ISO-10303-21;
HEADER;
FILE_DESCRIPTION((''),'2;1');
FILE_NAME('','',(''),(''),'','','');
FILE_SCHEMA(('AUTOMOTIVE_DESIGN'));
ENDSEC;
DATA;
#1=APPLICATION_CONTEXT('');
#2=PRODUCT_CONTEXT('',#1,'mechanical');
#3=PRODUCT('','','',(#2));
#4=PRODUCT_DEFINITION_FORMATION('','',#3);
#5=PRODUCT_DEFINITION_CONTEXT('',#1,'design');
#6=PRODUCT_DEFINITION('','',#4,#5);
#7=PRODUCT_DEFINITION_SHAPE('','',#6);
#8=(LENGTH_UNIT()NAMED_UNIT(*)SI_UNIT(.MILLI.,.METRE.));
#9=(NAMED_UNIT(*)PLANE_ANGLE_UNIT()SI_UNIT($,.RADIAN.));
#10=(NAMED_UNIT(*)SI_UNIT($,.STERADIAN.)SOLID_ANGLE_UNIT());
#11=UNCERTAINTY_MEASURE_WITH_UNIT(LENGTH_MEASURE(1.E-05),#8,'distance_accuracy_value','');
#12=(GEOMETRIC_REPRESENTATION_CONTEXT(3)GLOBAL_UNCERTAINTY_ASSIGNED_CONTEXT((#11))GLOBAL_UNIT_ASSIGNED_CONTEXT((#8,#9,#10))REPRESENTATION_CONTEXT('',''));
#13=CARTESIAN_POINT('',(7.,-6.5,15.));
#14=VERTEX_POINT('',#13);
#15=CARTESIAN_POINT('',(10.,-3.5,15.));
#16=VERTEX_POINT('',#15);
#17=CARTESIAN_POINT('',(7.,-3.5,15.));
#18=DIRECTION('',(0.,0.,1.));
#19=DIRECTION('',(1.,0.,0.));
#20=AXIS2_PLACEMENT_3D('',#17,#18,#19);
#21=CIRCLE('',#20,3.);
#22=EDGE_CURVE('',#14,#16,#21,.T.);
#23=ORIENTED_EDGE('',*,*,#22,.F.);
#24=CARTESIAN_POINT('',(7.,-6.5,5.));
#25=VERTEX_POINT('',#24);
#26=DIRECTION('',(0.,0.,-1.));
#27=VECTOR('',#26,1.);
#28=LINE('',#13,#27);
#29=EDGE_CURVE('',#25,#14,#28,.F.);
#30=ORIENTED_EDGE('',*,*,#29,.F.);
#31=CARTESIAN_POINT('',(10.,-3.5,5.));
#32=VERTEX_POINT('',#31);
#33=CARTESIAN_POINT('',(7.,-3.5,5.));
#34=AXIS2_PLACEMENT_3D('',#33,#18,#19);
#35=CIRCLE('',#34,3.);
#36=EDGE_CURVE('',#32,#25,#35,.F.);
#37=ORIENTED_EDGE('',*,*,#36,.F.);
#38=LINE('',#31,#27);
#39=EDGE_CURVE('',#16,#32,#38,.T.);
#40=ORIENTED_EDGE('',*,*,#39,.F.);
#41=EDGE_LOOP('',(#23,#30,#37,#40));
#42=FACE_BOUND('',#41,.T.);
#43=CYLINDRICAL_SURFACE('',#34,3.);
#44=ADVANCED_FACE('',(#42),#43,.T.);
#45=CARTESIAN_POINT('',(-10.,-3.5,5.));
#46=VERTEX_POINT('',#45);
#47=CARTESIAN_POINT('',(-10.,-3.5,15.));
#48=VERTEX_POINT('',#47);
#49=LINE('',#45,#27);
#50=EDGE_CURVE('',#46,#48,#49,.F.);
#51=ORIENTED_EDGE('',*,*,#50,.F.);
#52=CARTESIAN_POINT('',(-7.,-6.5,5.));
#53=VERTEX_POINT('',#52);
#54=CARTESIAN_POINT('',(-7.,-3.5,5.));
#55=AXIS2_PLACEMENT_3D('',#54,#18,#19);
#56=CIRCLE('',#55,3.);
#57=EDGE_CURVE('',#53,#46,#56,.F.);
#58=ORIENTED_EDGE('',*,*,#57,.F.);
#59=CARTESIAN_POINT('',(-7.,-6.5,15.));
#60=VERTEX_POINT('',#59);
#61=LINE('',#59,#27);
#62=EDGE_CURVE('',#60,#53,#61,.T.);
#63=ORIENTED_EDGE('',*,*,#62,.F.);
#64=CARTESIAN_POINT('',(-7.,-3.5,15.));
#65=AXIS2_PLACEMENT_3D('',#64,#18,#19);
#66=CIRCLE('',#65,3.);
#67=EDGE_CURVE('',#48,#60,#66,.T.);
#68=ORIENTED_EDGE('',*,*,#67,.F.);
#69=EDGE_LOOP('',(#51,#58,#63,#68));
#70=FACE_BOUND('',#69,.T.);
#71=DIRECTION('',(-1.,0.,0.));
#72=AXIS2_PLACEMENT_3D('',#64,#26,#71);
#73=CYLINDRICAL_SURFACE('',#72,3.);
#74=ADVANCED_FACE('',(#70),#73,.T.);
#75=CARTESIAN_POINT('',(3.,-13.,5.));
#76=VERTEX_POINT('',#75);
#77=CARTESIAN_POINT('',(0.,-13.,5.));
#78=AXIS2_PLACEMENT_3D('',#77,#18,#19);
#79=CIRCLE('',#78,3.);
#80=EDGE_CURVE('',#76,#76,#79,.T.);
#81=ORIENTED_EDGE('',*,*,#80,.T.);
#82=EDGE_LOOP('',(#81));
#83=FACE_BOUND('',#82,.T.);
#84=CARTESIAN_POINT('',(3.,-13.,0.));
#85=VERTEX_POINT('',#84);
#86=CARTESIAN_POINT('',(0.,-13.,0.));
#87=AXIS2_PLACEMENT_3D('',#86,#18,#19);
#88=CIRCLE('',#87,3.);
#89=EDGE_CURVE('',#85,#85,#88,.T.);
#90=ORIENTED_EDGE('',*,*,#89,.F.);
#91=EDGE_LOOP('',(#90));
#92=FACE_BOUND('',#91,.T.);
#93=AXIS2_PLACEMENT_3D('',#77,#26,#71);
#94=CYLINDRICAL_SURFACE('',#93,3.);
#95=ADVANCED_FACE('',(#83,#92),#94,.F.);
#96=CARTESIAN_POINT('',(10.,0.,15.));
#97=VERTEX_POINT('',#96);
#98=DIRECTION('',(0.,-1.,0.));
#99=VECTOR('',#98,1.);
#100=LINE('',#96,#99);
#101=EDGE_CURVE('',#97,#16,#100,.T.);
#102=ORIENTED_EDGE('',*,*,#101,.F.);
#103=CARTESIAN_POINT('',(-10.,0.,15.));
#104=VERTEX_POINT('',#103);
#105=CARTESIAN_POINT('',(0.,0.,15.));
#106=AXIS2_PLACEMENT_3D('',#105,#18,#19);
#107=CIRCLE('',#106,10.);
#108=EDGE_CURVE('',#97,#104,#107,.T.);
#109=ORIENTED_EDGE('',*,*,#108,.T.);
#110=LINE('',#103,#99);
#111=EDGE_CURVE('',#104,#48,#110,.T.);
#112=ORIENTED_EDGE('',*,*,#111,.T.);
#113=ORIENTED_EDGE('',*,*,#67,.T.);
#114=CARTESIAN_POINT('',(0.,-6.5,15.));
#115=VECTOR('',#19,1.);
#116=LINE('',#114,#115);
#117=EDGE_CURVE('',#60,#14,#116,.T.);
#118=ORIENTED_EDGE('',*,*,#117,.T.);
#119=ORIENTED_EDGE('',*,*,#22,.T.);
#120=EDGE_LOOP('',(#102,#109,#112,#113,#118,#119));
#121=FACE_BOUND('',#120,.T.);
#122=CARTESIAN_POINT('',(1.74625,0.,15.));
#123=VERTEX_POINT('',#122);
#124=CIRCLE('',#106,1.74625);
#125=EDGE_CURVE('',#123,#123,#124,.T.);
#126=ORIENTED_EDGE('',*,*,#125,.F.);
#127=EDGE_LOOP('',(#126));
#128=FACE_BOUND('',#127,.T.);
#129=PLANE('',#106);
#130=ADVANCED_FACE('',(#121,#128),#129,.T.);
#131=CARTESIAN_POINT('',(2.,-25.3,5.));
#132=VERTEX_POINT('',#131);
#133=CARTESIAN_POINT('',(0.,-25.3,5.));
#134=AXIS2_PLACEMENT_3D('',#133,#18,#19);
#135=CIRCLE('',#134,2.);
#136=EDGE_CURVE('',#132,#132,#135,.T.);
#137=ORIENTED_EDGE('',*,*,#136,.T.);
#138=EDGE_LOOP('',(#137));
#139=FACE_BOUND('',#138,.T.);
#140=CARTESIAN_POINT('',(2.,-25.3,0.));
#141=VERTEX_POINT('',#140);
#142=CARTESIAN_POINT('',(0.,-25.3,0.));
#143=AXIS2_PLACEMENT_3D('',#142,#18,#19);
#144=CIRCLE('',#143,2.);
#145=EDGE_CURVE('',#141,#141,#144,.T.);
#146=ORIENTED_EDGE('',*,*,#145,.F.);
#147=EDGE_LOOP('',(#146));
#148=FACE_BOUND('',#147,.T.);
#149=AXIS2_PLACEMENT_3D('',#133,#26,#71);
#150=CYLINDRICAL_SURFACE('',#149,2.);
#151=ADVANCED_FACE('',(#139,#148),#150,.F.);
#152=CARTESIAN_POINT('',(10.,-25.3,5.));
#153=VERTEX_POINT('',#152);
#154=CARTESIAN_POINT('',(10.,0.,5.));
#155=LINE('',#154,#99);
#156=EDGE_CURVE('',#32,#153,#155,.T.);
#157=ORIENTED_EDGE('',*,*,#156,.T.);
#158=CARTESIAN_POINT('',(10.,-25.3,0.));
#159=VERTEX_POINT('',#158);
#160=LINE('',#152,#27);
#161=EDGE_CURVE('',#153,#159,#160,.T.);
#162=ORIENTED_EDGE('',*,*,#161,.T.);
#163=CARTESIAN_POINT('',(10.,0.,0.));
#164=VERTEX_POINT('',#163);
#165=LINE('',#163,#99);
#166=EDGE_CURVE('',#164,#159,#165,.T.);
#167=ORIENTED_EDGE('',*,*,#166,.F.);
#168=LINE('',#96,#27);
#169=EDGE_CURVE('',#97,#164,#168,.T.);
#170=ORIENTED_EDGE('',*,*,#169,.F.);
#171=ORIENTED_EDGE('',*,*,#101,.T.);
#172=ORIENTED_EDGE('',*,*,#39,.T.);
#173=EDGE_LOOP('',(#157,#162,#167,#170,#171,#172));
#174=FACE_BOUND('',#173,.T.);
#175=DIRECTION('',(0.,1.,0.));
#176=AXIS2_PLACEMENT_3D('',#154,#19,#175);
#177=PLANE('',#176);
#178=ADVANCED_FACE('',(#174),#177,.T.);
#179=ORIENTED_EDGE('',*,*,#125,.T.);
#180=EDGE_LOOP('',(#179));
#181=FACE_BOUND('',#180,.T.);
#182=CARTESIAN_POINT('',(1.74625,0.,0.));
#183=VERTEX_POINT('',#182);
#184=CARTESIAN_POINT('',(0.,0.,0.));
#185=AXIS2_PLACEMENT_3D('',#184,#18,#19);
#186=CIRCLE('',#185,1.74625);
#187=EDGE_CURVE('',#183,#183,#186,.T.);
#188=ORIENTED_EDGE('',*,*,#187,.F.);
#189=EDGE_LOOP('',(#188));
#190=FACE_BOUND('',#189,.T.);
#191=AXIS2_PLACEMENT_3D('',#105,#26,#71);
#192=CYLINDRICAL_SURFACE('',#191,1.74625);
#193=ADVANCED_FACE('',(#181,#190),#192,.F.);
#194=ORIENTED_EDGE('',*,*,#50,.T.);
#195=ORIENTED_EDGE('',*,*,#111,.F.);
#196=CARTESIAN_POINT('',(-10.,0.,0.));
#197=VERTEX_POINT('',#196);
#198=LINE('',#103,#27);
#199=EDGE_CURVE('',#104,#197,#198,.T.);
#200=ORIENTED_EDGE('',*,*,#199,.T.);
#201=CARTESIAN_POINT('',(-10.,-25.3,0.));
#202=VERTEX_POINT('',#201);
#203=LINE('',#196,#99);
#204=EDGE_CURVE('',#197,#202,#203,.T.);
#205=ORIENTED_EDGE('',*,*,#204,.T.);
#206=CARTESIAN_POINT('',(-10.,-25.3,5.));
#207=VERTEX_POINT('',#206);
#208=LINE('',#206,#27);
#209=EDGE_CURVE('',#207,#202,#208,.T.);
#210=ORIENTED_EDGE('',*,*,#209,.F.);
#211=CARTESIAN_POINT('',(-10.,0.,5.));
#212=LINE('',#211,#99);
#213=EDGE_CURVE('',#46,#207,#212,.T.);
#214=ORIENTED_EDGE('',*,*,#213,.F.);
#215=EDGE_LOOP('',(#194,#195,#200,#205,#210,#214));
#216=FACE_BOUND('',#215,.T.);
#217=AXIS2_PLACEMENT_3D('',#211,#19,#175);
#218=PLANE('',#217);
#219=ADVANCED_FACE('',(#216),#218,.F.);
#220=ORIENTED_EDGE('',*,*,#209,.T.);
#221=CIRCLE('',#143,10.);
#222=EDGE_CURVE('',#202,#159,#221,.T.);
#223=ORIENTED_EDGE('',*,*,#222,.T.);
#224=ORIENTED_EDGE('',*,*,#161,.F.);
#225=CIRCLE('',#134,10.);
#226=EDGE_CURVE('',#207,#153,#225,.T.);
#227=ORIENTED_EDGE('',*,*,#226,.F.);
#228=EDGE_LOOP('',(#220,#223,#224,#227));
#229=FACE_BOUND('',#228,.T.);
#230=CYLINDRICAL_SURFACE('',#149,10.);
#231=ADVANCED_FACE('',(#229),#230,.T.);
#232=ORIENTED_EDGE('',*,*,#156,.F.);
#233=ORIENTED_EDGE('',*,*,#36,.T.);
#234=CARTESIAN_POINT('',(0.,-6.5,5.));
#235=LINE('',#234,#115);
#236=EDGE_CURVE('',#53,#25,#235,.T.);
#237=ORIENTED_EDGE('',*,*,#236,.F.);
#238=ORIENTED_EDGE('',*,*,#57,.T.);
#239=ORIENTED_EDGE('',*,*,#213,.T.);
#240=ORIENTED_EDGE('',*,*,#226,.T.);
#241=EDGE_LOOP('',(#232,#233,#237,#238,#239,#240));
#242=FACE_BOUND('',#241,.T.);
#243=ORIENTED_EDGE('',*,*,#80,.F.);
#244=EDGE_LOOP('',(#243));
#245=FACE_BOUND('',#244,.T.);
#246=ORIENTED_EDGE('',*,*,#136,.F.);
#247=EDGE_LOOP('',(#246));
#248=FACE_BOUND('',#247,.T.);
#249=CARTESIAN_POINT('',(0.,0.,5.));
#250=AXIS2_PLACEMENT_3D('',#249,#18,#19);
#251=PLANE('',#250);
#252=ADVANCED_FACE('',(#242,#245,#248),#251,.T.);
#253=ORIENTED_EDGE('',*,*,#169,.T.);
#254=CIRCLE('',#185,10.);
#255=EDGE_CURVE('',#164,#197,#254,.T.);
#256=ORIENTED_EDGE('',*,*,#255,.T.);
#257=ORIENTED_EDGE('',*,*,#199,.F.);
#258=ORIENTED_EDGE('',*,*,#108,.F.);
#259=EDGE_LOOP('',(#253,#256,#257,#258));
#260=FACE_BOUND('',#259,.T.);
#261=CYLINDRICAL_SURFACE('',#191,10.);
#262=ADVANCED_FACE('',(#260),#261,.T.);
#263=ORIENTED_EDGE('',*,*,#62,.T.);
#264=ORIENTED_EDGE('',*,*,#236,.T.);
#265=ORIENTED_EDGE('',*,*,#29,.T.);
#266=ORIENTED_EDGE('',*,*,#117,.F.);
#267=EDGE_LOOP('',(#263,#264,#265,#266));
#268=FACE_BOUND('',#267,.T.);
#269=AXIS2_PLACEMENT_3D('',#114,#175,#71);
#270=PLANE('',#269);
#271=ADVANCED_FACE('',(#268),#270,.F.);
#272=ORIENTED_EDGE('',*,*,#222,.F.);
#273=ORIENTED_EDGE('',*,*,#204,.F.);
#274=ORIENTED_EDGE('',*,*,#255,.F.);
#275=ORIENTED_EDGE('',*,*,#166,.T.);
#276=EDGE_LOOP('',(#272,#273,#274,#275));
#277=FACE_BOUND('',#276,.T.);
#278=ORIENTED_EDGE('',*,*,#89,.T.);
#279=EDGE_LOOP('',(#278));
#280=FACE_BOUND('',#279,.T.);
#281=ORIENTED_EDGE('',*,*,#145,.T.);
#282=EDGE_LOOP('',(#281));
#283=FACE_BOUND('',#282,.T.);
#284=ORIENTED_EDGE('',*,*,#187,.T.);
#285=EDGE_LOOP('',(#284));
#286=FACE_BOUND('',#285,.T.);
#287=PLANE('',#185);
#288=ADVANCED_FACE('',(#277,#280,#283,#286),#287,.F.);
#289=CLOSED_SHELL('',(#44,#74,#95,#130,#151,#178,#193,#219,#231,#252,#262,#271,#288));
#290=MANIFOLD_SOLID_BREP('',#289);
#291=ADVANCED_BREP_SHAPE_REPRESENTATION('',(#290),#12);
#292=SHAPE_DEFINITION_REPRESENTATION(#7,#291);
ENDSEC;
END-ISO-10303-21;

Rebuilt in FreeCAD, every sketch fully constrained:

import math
import FreeCAD as App
import Part
import Sketcher


def edges_at(feature, points):
    """Names of the edges that pass closest to the given points."""
    edges = feature.Shape.Edges
    near = lambda p: min(range(len(edges)), key=lambda i: edges[i].distToShape(Part.Vertex(*p))[0])
    return sorted({f"Edge{near(p) + 1}" for p in points})

doc = App.newDocument("Part")
body = doc.addObject("PartDesign::Body", "Body")

# Sketch on XY plane
sketch1 = body.newObject("Sketcher::SketchObject", "Sketch")
sketch1.AttachmentSupport = (doc.getObject("XY_Plane"), [""])
sketch1.MapMode = "FlatFace"
sketch1.addGeometry([
    Part.LineSegment(App.Vector(10, -25.3, 0), App.Vector(10, -6.5, 0)),  # 0
    Part.LineSegment(App.Vector(10, -6.5, 0), App.Vector(-10, -6.5, 0)),  # 1
    Part.LineSegment(App.Vector(-10, -6.5, 0), App.Vector(-10, -25.3, 0)),  # 2
    Part.ArcOfCircle(Part.Circle(App.Vector(0, -25.3, 0), App.Vector(0, 0, 1), 10), math.radians(180), math.radians(360)),  # 3
    Part.Circle(App.Vector(0, -25.3, 0), App.Vector(0, 0, 1), 2),  # 4
    Part.Circle(App.Vector(0, -13, 0), App.Vector(0, 0, 1), 3),  # 5
], False)
sketch1.addConstraint([
    Sketcher.Constraint("Coincident", 0, 2, 1, 1),
    Sketcher.Constraint("Coincident", 1, 2, 2, 1),
    Sketcher.Constraint("Tangent", 2, 2, 3, 1),
    Sketcher.Constraint("Tangent", 3, 2, 0, 1),
    Sketcher.Constraint("Vertical", 0),
    Sketcher.Constraint("Horizontal", 1),
    Sketcher.Constraint("Vertical", 2),
    Sketcher.Constraint("Coincident", 4, 3, 3, 3),
    Sketcher.Constraint("PointOnObject", 3, 3, -2),
    Sketcher.Constraint("PointOnObject", 5, 3, -2),
    Sketcher.Constraint("Diameter", 4, 4.0),
    Sketcher.Constraint("Diameter", 5, 6.0),
    Sketcher.Constraint("Radius", 3, 10.0),
    Sketcher.Constraint("DistanceY", 0, 1, 0, 2, 18.8),
    Sketcher.Constraint("DistanceY", 5, 3, -1, 1, 13.0),
    Sketcher.Constraint("DistanceY", 3, 3, -1, 1, 25.3),
])
pad1 = body.newObject("PartDesign::Pad", "Pad")
pad1.Profile = sketch1
pad1.Length = 5

# Sketch on XY plane
sketch2 = body.newObject("Sketcher::SketchObject", "Sketch001")
sketch2.AttachmentSupport = (doc.getObject("XY_Plane"), [""])
sketch2.MapMode = "FlatFace"
sketch2.addGeometry([
    Part.LineSegment(App.Vector(10, -6.5, 0), App.Vector(10, 0, 0)),  # 0
    Part.ArcOfCircle(Part.Circle(App.Vector(0, 0, 0), App.Vector(0, 0, 1), 10), math.radians(0), math.radians(180)),  # 1
    Part.LineSegment(App.Vector(-10, 0, 0), App.Vector(-10, -6.5, 0)),  # 2
    Part.LineSegment(App.Vector(-10, -6.5, 0), App.Vector(10, -6.5, 0)),  # 3
    Part.Circle(App.Vector(0, 0, 0), App.Vector(0, 0, 1), 1.7),  # 4
], False)
sketch2.addConstraint([
    Sketcher.Constraint("Tangent", 0, 2, 1, 1),
    Sketcher.Constraint("Tangent", 1, 2, 2, 1),
    Sketcher.Constraint("Coincident", 2, 2, 3, 1),
    Sketcher.Constraint("Coincident", 3, 2, 0, 1),
    Sketcher.Constraint("Vertical", 0),
    Sketcher.Constraint("Vertical", 2),
    Sketcher.Constraint("Horizontal", 3),
    Sketcher.Constraint("Coincident", 1, 3, -1, 1),
    Sketcher.Constraint("Coincident", 4, 3, -1, 1),
    Sketcher.Constraint("Radius", 1, 10.0),
    Sketcher.Constraint("DistanceY", 0, 1, 0, 2, 6.5),
    Sketcher.Constraint("Diameter", 4, 3.4925),
])
pad2 = body.newObject("PartDesign::Pad", "Pad001")
pad2.Profile = sketch2
pad2.Length = 15
doc.recompute()

fillet = body.newObject("PartDesign::Fillet", "Fillet")
fillet.Base = (pad2, edges_at(pad2, [(-10, -6.5, 10), (10, -6.5, 10)]))
fillet.Radius = 3

doc.recompute()
